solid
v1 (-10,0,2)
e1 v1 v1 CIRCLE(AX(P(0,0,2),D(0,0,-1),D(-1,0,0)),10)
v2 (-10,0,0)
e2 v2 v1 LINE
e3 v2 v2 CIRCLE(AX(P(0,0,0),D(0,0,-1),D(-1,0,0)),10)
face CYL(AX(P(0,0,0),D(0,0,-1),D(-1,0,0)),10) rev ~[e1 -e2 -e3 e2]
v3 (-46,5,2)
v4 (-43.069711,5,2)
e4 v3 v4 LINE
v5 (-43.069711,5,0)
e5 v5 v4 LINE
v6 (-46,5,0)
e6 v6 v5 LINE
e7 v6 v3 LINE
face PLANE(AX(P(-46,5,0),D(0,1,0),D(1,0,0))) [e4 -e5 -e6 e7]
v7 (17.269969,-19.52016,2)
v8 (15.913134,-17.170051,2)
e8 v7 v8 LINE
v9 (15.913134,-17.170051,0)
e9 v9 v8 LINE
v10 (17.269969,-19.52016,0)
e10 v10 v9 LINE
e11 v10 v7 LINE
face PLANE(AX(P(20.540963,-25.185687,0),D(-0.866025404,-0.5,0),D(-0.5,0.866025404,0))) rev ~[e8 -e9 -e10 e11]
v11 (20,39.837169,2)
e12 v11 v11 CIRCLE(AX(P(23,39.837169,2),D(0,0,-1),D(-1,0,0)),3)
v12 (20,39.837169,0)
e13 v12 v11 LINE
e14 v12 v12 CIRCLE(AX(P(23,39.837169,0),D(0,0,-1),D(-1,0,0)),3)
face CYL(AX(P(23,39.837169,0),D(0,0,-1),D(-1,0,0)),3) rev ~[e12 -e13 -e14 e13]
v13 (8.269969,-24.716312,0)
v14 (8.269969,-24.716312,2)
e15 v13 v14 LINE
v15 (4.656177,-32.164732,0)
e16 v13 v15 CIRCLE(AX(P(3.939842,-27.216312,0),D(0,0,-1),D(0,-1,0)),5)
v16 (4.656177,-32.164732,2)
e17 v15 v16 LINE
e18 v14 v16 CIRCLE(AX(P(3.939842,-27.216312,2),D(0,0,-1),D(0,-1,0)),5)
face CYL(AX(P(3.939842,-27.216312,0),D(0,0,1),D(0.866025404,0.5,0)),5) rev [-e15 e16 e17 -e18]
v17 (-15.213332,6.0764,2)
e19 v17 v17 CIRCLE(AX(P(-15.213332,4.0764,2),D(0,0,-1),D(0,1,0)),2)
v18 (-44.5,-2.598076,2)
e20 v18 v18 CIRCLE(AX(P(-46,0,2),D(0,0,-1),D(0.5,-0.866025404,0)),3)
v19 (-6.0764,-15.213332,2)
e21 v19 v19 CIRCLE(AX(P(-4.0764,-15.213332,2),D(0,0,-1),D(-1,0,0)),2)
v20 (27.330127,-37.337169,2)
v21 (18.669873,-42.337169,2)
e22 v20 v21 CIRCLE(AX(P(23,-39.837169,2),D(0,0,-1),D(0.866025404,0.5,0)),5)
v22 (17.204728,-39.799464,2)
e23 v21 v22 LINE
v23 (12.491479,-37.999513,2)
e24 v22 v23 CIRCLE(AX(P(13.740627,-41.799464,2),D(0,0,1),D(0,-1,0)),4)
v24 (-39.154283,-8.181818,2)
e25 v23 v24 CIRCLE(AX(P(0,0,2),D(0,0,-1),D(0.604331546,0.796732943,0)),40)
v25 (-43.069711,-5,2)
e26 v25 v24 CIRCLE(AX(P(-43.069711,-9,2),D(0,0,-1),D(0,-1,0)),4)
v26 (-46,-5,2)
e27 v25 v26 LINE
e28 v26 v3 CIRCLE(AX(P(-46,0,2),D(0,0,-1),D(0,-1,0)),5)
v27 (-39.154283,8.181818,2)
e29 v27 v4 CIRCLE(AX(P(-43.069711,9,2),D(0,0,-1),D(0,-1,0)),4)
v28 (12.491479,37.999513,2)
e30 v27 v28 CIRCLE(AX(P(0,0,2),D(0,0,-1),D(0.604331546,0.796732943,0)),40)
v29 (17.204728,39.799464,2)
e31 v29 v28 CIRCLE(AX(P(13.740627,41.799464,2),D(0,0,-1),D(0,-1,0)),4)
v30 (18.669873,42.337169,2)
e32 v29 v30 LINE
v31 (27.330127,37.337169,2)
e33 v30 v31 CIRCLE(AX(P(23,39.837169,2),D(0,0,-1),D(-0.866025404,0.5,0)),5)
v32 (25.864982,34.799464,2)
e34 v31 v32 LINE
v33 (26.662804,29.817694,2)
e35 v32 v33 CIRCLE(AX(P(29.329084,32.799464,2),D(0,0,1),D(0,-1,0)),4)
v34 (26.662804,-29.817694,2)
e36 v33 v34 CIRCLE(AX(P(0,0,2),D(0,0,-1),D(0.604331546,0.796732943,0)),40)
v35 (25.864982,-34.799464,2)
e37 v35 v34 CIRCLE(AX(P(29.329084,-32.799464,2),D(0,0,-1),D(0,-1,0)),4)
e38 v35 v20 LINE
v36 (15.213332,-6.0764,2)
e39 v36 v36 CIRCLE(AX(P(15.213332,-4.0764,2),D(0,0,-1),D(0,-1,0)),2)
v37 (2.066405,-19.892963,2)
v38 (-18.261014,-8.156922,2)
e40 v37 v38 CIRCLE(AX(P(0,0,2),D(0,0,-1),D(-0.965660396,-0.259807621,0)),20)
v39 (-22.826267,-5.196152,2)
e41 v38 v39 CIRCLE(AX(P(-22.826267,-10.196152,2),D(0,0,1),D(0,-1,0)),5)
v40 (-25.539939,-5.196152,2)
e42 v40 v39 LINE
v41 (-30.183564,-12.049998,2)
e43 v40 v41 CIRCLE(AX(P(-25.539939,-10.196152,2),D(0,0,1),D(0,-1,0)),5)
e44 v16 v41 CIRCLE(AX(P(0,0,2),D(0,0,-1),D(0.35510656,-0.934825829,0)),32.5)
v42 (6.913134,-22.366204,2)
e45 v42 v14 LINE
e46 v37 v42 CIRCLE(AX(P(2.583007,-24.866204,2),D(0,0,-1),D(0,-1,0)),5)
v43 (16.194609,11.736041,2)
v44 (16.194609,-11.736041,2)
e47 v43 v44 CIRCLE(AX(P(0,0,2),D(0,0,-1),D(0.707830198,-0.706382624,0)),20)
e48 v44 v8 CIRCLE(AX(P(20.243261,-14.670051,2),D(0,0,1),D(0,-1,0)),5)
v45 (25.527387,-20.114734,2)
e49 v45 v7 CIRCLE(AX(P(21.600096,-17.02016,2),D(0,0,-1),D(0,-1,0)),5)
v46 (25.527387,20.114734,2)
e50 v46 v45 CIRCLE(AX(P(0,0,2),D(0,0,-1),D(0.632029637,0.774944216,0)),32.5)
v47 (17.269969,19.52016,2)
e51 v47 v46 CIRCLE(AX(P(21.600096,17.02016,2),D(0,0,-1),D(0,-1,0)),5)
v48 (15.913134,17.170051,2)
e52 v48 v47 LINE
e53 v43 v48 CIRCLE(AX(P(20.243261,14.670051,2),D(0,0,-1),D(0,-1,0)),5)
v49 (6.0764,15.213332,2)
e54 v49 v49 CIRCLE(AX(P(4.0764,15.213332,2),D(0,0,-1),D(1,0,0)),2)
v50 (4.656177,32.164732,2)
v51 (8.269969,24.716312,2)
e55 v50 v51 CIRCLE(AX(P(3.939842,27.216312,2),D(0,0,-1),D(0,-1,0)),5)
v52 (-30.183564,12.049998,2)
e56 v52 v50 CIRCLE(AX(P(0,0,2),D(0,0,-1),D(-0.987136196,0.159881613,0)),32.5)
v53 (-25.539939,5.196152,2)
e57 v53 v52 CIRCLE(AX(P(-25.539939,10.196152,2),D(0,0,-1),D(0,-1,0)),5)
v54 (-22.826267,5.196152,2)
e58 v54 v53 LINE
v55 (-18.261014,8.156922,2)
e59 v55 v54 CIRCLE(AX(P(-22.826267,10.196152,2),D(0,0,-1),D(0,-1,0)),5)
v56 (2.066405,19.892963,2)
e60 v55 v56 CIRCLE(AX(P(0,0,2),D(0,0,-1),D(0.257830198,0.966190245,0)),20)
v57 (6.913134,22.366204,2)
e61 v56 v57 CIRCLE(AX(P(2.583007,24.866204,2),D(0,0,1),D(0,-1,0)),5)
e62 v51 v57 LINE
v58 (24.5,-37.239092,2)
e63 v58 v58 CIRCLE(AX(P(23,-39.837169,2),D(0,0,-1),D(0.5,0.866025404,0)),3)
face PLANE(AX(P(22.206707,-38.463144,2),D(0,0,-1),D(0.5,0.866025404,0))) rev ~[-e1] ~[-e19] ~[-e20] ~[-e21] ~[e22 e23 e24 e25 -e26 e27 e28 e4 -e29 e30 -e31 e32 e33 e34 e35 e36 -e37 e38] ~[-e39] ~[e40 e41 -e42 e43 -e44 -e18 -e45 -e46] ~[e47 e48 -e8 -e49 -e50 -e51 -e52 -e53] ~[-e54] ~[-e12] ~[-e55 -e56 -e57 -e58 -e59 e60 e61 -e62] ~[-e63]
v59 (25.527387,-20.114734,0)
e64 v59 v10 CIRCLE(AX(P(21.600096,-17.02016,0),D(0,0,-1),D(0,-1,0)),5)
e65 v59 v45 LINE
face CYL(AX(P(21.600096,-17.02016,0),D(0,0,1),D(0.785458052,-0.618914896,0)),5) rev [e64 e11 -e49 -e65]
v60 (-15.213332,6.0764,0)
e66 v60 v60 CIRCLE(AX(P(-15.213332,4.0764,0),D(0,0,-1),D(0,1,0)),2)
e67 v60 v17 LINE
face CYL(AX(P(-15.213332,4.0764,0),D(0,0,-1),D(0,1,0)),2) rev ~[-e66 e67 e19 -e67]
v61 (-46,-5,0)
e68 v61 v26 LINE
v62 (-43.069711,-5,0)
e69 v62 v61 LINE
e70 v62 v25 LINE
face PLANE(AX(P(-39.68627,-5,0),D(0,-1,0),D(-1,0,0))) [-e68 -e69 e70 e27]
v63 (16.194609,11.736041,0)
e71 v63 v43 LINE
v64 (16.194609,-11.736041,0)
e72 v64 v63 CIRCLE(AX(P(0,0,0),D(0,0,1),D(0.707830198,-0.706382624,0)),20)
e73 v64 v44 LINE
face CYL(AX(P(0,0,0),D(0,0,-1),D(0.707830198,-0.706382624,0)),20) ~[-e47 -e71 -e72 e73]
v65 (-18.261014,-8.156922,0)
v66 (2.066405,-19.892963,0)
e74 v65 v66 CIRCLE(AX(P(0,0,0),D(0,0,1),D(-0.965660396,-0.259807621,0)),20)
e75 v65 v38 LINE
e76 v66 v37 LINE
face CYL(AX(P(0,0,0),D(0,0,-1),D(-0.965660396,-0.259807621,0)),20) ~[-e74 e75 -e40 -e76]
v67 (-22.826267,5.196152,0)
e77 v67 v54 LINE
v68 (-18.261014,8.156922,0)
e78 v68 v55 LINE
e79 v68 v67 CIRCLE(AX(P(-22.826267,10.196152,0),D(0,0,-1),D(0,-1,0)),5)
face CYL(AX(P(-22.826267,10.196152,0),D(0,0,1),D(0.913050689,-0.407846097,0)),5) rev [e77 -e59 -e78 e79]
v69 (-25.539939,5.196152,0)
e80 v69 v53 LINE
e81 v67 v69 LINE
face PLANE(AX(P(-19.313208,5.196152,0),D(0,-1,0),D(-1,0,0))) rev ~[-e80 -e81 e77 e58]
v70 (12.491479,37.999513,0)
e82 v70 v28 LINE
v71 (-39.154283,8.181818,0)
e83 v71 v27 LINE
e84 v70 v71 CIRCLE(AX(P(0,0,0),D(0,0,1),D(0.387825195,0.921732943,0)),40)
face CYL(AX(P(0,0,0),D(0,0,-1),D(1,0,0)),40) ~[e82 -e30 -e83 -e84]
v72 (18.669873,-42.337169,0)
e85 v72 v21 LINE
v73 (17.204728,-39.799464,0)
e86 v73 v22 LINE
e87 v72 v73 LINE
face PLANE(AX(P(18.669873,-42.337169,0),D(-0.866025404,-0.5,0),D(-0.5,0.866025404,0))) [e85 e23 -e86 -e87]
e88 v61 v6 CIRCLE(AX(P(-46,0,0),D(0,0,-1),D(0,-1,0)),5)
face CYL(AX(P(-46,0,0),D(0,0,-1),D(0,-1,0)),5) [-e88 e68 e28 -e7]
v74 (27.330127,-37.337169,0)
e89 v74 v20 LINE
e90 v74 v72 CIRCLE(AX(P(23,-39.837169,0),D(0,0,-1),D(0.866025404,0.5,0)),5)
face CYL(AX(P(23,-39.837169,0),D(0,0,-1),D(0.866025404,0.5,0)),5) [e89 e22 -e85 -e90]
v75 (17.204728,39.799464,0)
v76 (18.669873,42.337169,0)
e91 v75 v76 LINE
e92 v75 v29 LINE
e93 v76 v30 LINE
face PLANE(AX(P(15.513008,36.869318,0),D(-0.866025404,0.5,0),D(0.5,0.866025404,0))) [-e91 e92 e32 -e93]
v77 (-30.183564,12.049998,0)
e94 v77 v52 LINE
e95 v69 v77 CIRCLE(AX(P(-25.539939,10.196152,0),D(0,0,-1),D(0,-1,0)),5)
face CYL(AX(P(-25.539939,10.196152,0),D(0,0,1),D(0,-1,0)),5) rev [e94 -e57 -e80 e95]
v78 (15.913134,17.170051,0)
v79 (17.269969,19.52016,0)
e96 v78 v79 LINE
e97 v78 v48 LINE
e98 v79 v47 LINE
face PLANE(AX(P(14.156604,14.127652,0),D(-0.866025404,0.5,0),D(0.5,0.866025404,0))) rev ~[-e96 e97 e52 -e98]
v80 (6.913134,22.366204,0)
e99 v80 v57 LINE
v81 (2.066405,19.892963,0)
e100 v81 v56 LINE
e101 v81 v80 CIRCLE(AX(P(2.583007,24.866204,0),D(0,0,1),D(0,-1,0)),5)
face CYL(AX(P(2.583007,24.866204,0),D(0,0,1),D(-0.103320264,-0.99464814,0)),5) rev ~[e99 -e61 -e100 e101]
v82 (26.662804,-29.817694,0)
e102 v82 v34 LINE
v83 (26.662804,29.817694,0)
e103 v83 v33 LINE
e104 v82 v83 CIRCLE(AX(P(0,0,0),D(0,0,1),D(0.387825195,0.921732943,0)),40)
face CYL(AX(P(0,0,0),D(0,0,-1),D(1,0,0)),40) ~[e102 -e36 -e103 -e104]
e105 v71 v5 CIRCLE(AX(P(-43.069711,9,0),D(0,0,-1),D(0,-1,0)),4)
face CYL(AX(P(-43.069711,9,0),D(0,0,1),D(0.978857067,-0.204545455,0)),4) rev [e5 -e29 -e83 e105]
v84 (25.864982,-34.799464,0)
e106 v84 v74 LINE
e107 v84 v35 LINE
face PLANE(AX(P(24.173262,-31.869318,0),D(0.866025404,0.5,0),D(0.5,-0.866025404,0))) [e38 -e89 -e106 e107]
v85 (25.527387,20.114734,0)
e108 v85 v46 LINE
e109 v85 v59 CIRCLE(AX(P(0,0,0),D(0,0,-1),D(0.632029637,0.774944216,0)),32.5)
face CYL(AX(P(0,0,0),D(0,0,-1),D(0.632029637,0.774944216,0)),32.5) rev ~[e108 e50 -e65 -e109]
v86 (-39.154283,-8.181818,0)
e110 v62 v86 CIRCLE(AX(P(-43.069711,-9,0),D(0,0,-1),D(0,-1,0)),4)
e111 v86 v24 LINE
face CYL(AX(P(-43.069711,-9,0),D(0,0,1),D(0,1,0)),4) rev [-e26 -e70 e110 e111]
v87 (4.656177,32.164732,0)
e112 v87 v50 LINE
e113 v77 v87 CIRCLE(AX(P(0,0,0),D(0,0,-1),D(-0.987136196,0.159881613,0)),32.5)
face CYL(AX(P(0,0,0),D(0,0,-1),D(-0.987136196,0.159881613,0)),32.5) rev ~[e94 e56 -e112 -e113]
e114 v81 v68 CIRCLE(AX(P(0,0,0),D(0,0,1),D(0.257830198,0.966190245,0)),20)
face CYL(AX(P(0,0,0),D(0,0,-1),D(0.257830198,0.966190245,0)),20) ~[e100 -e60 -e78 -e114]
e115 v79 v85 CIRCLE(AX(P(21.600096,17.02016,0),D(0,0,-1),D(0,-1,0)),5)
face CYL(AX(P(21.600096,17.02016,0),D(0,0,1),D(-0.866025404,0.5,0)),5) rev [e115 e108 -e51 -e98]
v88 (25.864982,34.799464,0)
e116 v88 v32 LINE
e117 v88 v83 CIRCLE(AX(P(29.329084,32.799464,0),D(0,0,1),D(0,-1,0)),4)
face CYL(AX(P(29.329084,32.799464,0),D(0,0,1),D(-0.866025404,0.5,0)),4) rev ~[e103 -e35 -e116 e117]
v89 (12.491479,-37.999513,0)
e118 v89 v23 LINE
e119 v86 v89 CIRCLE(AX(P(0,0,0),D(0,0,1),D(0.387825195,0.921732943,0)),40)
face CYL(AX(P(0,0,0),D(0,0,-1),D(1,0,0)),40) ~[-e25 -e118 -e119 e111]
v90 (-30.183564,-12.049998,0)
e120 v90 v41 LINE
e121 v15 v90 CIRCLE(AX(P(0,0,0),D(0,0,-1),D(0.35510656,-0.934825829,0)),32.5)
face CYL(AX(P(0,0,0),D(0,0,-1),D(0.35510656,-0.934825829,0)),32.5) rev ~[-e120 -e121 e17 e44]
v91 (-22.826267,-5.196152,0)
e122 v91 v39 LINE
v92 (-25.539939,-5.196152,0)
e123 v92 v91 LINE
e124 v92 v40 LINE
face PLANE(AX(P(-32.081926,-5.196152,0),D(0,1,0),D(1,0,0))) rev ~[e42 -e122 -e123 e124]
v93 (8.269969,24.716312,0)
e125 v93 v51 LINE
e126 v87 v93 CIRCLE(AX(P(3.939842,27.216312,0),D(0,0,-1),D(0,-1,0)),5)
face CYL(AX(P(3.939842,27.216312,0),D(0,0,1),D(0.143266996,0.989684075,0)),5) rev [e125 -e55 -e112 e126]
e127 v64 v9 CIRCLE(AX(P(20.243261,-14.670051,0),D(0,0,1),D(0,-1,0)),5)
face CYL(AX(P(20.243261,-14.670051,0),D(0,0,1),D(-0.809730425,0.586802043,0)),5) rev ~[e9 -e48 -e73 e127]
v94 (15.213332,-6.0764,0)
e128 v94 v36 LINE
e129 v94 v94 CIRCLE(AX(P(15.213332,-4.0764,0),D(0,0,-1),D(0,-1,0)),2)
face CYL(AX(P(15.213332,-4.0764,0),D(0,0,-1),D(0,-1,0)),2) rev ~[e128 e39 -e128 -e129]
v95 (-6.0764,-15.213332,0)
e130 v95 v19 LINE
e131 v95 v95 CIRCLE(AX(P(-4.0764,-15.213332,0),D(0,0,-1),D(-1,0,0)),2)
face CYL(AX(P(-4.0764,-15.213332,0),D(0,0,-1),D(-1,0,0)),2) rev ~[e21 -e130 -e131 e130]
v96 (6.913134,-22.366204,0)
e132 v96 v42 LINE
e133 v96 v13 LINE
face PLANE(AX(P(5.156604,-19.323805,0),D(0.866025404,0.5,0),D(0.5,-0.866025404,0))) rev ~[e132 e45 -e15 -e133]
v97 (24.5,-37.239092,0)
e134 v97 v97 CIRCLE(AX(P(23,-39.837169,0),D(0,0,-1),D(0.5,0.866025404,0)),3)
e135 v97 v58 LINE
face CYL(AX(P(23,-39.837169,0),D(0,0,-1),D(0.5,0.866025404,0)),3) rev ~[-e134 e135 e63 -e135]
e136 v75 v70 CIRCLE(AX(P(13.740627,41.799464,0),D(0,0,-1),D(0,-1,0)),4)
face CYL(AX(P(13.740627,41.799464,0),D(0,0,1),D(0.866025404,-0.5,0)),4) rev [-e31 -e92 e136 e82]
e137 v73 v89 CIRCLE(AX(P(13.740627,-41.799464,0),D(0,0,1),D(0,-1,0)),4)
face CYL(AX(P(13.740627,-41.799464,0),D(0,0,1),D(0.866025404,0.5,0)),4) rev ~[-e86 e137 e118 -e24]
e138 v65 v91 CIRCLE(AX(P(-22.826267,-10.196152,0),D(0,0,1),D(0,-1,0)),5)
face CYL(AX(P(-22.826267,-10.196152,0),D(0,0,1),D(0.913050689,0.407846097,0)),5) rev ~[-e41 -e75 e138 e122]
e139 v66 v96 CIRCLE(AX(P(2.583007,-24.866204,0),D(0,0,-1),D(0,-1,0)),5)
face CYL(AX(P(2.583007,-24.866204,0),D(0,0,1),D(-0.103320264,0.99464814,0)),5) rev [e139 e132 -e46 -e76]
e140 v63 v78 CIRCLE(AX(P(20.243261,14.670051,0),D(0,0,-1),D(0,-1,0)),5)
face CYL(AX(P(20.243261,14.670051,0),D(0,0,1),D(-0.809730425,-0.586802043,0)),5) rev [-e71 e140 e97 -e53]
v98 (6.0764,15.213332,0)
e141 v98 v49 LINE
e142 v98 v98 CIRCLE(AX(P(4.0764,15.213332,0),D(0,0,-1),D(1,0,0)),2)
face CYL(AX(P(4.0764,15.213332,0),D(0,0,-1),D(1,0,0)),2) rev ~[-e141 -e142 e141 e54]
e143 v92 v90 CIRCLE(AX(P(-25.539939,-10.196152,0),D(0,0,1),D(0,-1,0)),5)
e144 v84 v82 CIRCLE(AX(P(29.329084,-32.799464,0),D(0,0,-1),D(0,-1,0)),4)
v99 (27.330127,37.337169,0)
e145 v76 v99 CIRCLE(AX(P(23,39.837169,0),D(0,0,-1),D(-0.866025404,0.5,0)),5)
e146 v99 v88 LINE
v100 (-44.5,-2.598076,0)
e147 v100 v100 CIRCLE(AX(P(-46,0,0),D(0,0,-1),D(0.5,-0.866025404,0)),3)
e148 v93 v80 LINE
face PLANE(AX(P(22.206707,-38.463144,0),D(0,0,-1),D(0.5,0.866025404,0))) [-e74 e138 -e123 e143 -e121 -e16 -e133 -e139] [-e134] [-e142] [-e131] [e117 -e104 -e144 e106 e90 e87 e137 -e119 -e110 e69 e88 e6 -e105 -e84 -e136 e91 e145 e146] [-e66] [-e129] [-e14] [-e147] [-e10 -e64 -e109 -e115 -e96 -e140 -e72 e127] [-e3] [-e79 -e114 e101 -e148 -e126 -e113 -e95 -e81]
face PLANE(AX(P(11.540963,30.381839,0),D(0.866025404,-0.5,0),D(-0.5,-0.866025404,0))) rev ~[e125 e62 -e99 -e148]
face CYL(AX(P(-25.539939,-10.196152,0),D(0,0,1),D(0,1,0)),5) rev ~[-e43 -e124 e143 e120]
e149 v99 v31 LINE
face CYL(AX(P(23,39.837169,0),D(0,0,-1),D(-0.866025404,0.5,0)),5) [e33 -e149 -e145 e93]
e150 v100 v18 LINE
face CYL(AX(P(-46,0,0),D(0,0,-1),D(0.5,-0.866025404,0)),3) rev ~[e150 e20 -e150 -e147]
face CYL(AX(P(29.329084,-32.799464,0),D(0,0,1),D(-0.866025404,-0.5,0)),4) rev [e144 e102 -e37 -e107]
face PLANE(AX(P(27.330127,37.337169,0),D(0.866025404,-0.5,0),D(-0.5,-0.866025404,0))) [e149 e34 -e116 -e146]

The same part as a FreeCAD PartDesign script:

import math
import FreeCAD as App
import Part
import Sketcher

V = App.Vector
Q = App.Units.Quantity


def edges_at(feature, points):
    """Names of the edges that pass closest to the given points."""
    edges = feature.Shape.Edges
    near = lambda p: min(range(len(edges)), key=lambda i: edges[i].distToShape(Part.Vertex(*p))[0])
    return sorted({f"Edge{near(p) + 1}" for p in points})

doc = App.newDocument("Part")
body = doc.addObject("PartDesign::Body", "Body")

# Sketch on XY plane
sketch1 = body.newObject("Sketcher::SketchObject", "Sketch")
sketch1.AttachmentSupport = (doc.getObject("XY_Plane"), [""])
sketch1.MapMode = "FlatFace"
sketch1.addGeometry(Part.Circle(V(0, 0, 0), V(0, 0, 1), 40), False)
sketch1.addConstraint([
    Sketcher.Constraint("Coincident", 0, 3, -1, 1),
    Sketcher.Constraint("Diameter", 0, Q("80 mm")),
])
pad1 = body.newObject("PartDesign::Pad", "Pad")
pad1.Profile = sketch1
pad1.Length = 2

# Sketch on XY plane
sketch2 = body.newObject("Sketcher::SketchObject", "Sketch001")
sketch2.AttachmentSupport = (doc.getObject("XY_Plane"), [""])
sketch2.MapMode = "FlatFace"
sketch2.addGeometry([
    Part.LineSegment(V(15.513008, 36.869318, 0), V(18.669873, 42.337169, 0)),  # 0
    Part.ArcOfCircle(Part.Circle(V(23, 39.837169, 0), V(0, 0, 1), 5), math.radians(-30), math.radians(150)),  # 1
    Part.LineSegment(V(27.330127, 37.337169, 0), V(24.173262, 31.869318, 0)),  # 2
    Part.LineSegment(V(24.173262, 31.869318, 0), V(15.513008, 36.869318, 0)),  # 3
    Part.Circle(V(23, 39.837169, 0), V(0, 0, 1), 3),  # 4
], False)
sketch2.addConstraint([
    Sketcher.Constraint("Tangent", 0, 2, 1, 2),
    Sketcher.Constraint("Tangent", 1, 1, 2, 1),
    Sketcher.Constraint("Coincident", 2, 2, 3, 1),
    Sketcher.Constraint("Coincident", 3, 2, 0, 1),
    Sketcher.Constraint("Coincident", 4, 3, 1, 3),
    Sketcher.Constraint("Parallel", 0, 2),
    Sketcher.Constraint("Perpendicular", 2, 3),
    Sketcher.Constraint("Diameter", 4, Q("6 mm")),
    Sketcher.Constraint("Radius", 1, Q("5 mm")),
    Sketcher.Constraint("Angle", 0, Q("60 deg")),
    Sketcher.Constraint("DistanceX", -1, 1, 1, 3, Q("23 mm")),
    Sketcher.Constraint("Distance", 0, Q("6.31373 mm")),
    Sketcher.Constraint("DistanceY", -1, 1, 1, 3, Q("39.837169 mm")),
])
pad2 = body.newObject("PartDesign::Pad", "Pad001")
pad2.Profile = sketch2
pad2.Length = 2
doc.recompute()

fillet = body.newObject("PartDesign::Fillet", "Fillet")
fillet.Base = (pad2, edges_at(pad2, [(15.513, 36.869, 1), (24.173, 31.869, 1)]))
fillet.Radius = 4
doc.recompute()

polarpattern = body.newObject("PartDesign::PolarPattern", "PolarPattern")
polarpattern.Originals = [pad2]
polarpattern.Axis = (doc.getObject("Z_Axis"), [""])
polarpattern.Angle = 360
polarpattern.Occurrences = 3
body.Tip = polarpattern
doc.recompute()

fillet2 = body.newObject("PartDesign::Fillet", "Fillet001")
fillet2.Base = (polarpattern, edges_at(polarpattern, [
    (-39.686, -5, 1),
    (-39.686, 5, 1),
    (24.173, -31.869, 1),
    (15.513, -36.869, 1),
]))
fillet2.Radius = 4

# Sketch on XY plane
sketch3 = body.newObject("Sketcher::SketchObject", "Sketch002")
sketch3.AttachmentSupport = (doc.getObject("XY_Plane"), [""])
sketch3.MapMode = "FlatFace"
sketch3.addGeometry(Part.Circle(V(0, 0, 0), V(0, 0, 1), 10), False)
sketch3.addConstraint([
    Sketcher.Constraint("Coincident", 0, 3, -1, 1),
    Sketcher.Constraint("Diameter", 0, Q("20 mm")),
])
pocket1 = body.newObject("PartDesign::Pocket", "Pocket")
pocket1.Profile = sketch3
pocket1.Length = 8
pocket1.Reversed = True

# Sketch on XY plane
sketch4 = body.newObject("Sketcher::SketchObject", "Sketch003")
sketch4.AttachmentSupport = (doc.getObject("XY_Plane"), [""])
sketch4.MapMode = "FlatFace"
sketch4.addGeometry([
    Part.ArcOfCircle(Part.Circle(V(0, 0, 0), V(0, 0, 1), 20), math.radians(75.058647), math.radians(164.941353)),
    Part.LineSegment(V(-19.313208, 5.196152, 0), V(-32.081926, 5.196152, 0)),
    Part.ArcOfCircle(Part.Circle(V(0, 0, 0), V(0, 0, 1), 32.5), math.radians(69.200025), math.radians(170.799975)),
    Part.LineSegment(V(11.540963, 30.381839, 0), V(5.156604, 19.323805, 0)),
], False)
sketch4.addConstraint([
    Sketcher.Constraint("Coincident", 0, 2, 1, 1),
    Sketcher.Constraint("Coincident", 1, 2, 2, 2),
    Sketcher.Constraint("Coincident", 2, 1, 3, 1),
    Sketcher.Constraint("Coincident", 3, 2, 0, 1),
    Sketcher.Constraint("Horizontal", 1),
    Sketcher.Constraint("Coincident", 0, 3, -1, 1),
    Sketcher.Constraint("Coincident", 2, 3, -1, 1),
    Sketcher.Constraint("Radius", 0, Q("20 mm")),
    Sketcher.Constraint("Radius", 2, Q("32.5 mm")),
    Sketcher.Constraint("Angle", 3, Q("-120 deg")),
    Sketcher.Constraint("DistanceX", 1, 2, 1, 1, Q("12.768718 mm")),
    Sketcher.Constraint("Distance", 3, Q("12.768718 mm")),
])
pocket2 = body.newObject("PartDesign::Pocket", "Pocket001")
pocket2.Profile = sketch4
pocket2.Length = 15
pocket2.Reversed = True
doc.recompute()

fillet3 = body.newObject("PartDesign::Fillet", "Fillet002")
fillet3.Base = (pocket2, edges_at(pocket2, [
    (-32.082, 5.196, 1),
    (-19.313, 5.196, 1),
    (5.157, 19.324, 1),
    (11.541, 30.382, 1),
]))
fillet3.Radius = 5
doc.recompute()

polarpattern2 = body.newObject("PartDesign::PolarPattern", "PolarPattern001")
polarpattern2.Originals = [pocket2]
polarpattern2.Axis = (doc.getObject("Z_Axis"), [""])
polarpattern2.Angle = 360
polarpattern2.Occurrences = 3
body.Tip = polarpattern2
doc.recompute()

fillet4 = body.newObject("PartDesign::Fillet", "Fillet003")
fillet4.Base = (polarpattern2, edges_at(polarpattern2, [
    (11.541, -30.382, 1),
    (5.157, -19.324, 1),
    (-19.313, -5.196, 1),
    (-32.082, -5.196, 1),
    (20.541, 25.186, 1),
    (14.157, 14.128, 1),
    (14.157, -14.128, 1),
    (20.541, -25.186, 1),
]))
fillet4.Radius = 5

# Sketch on XY plane
sketch5 = body.newObject("Sketcher::SketchObject", "Sketch004")
sketch5.AttachmentSupport = (doc.getObject("XY_Plane"), [""])
sketch5.MapMode = "FlatFace"
sketch5.addGeometry(Part.Circle(V(-4.0764, -15.213332, 0), V(0, 0, 1), 2), False)
sketch5.addConstraint([
    Sketcher.Constraint("Diameter", 0, Q("4 mm")),
    Sketcher.Constraint("DistanceX", 0, 3, -1, 1, Q("4.0764 mm")),
    Sketcher.Constraint("DistanceY", 0, 3, -1, 1, Q("15.213332 mm")),
])
pocket3 = body.newObject("PartDesign::Pocket", "Pocket002")
pocket3.Profile = sketch5
pocket3.Length = 10
pocket3.Reversed = True
doc.recompute()

polarpattern3 = body.newObject("PartDesign::PolarPattern", "PolarPattern002")
polarpattern3.Originals = [pocket3]
polarpattern3.Axis = (doc.getObject("Z_Axis"), [""])
polarpattern3.Angle = 360
polarpattern3.Occurrences = 4
body.Tip = polarpattern3

doc.recompute()
